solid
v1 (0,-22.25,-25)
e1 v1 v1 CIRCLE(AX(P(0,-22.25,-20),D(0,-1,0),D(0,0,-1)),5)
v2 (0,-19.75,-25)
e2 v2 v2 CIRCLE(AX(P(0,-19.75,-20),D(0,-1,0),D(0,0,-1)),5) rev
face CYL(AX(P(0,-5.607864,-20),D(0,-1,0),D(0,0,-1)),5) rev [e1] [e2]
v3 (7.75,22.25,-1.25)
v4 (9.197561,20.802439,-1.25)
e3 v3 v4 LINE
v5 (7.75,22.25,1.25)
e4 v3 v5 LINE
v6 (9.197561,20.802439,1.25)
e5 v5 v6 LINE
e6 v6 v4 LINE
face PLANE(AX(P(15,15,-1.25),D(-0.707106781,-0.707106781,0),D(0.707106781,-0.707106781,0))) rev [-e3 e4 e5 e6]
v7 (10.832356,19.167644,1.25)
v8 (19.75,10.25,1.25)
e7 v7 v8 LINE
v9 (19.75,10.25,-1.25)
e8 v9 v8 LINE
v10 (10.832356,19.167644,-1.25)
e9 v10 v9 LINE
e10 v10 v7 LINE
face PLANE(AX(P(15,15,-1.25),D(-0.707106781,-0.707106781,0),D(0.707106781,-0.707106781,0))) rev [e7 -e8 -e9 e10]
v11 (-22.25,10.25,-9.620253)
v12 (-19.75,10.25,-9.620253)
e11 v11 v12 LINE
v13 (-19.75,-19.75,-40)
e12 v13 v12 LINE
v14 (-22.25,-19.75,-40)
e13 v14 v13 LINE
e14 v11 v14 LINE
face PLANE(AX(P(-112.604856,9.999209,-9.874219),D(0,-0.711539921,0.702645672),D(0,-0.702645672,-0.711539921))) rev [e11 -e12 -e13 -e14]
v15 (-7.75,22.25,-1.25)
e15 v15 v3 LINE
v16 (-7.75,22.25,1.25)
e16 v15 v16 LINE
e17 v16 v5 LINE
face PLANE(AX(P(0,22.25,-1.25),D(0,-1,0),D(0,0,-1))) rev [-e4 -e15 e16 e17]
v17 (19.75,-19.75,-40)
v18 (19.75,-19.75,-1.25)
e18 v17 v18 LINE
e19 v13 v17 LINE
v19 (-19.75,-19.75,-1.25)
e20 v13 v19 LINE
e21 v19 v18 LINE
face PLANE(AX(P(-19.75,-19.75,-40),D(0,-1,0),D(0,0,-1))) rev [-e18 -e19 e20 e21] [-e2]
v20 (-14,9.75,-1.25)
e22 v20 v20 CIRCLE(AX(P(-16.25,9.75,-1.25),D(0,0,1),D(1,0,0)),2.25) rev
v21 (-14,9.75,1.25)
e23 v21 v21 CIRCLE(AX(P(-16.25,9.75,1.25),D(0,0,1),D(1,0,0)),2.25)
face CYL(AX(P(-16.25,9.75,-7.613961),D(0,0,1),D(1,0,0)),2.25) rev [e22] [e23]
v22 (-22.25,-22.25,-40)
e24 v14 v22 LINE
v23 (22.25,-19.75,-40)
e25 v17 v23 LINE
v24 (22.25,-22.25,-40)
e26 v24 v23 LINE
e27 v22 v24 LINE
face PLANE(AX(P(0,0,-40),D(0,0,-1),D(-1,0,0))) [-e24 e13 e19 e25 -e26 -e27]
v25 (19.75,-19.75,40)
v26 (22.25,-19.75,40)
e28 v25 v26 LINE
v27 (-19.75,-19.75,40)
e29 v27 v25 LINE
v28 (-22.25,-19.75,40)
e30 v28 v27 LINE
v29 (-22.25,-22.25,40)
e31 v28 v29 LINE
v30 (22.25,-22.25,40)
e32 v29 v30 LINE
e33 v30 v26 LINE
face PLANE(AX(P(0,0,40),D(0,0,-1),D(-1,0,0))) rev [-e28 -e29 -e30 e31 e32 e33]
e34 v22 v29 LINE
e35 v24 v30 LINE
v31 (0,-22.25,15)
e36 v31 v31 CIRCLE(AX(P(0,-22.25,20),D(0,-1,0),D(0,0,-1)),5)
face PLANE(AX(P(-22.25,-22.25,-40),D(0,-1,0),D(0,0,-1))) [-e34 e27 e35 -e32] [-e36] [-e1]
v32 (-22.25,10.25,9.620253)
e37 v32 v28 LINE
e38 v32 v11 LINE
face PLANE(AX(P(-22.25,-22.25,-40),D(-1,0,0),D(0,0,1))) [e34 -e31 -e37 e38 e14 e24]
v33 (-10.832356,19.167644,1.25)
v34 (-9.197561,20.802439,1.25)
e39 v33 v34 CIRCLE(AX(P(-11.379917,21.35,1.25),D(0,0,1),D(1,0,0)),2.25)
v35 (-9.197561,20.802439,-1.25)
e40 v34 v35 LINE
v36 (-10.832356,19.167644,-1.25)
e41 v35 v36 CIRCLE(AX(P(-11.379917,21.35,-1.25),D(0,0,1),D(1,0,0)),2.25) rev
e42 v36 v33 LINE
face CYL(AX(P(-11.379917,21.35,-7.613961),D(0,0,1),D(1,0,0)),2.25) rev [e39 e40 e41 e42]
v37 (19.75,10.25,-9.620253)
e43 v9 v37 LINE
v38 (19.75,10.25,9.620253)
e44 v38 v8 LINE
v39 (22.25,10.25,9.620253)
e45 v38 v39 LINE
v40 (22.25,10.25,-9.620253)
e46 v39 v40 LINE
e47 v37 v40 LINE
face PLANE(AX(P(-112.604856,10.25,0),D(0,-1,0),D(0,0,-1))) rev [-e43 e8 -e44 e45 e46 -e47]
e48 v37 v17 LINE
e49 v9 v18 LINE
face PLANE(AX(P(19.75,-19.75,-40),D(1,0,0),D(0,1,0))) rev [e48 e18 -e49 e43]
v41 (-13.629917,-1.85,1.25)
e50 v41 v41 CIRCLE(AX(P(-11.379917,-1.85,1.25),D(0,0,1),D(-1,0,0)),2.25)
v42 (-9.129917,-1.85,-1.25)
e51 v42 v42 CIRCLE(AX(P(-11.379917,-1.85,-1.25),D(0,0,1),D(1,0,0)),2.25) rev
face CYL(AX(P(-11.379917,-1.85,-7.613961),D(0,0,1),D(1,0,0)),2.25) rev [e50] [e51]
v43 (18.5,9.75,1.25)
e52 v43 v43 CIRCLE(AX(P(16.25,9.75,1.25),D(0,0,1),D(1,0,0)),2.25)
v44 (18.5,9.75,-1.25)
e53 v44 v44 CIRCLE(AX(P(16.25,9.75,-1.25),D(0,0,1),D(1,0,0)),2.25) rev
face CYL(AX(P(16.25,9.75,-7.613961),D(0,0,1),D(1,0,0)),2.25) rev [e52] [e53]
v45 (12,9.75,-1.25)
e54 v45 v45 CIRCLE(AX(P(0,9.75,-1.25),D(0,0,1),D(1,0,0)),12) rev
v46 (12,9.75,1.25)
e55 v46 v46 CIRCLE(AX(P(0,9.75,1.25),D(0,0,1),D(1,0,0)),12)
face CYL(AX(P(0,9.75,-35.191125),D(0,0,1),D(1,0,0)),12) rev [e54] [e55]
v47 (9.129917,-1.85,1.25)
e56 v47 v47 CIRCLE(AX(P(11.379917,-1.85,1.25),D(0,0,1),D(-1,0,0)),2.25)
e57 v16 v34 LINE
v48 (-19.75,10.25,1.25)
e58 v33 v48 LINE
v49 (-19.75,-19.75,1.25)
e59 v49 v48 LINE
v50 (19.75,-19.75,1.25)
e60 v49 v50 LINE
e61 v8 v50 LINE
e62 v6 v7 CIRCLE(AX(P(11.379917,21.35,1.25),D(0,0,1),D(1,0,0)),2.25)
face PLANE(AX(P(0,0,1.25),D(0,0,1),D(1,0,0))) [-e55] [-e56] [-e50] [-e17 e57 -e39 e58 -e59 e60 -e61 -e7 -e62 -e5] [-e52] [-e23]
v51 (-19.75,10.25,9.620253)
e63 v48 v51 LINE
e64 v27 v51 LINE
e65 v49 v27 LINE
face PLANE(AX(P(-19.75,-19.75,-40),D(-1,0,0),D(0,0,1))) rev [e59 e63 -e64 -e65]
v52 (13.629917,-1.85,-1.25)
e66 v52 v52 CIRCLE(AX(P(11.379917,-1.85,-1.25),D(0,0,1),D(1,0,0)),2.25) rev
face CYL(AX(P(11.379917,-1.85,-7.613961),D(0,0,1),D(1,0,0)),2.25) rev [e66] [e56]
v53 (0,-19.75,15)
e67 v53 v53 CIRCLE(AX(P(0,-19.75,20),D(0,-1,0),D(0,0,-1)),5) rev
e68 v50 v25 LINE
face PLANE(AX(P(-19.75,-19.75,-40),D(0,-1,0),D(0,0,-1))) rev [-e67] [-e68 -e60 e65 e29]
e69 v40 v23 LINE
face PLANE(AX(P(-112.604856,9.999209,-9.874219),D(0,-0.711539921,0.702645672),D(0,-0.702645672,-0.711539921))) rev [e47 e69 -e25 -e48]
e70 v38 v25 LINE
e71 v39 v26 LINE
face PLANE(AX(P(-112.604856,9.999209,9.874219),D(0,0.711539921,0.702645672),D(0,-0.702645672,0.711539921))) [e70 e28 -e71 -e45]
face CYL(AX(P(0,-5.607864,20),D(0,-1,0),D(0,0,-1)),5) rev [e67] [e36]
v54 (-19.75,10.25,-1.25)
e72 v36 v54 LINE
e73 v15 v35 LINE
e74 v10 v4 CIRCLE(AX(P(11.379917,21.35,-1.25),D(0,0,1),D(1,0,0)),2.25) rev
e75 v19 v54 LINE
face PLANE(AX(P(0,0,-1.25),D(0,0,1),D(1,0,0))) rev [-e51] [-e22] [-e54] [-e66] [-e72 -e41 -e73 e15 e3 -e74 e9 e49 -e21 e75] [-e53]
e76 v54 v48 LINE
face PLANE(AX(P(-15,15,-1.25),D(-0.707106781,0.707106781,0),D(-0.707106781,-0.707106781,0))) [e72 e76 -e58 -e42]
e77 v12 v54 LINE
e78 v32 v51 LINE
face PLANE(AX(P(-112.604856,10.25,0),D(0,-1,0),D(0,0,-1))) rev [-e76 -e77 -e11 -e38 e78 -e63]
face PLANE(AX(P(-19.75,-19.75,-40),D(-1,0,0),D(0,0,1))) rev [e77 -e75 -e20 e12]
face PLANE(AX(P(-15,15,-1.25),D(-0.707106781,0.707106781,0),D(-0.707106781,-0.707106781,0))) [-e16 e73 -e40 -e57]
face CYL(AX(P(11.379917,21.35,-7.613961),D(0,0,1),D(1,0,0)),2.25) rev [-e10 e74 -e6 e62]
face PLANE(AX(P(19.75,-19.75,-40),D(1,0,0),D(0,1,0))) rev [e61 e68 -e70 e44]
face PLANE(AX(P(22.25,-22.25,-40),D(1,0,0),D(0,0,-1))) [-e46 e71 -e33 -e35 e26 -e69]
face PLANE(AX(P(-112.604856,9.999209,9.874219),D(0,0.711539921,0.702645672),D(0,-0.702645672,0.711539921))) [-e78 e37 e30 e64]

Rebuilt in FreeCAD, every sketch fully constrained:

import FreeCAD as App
import Part
import Sketcher

V = App.Vector

doc = App.newDocument("Part")
body = doc.addObject("PartDesign::Body", "Body")

# Sketch on XY plane
sketch1 = doc.addObject("Sketcher::SketchObject", "Sketch")
body.addObject(sketch1)
sketch1.AttachmentSupport = (doc.XY_Plane, [""])
sketch1.MapMode = "FlatFace"
sketch1.addGeometry(Part.LineSegment(V(-22, 22, 0), V(-22, -22, 0)), False)
sketch1.addGeometry(Part.LineSegment(V(-22, -22, 0), V(22, -22, 0)), False)
sketch1.addGeometry(Part.LineSegment(V(22, -22, 0), V(22, 22, 0)), False)
sketch1.addGeometry(Part.LineSegment(V(22, 22, 0), V(-22, 22, 0)), False)
sketch1.addGeometry(Part.LineSegment(V(20, -20, 0), V(-20, -20, 0)), False)
sketch1.addGeometry(Part.LineSegment(V(-20, -20, 0), V(-20, 20, 0)), False)
sketch1.addGeometry(Part.LineSegment(V(-20, 20, 0), V(20, 20, 0)), False)
sketch1.addGeometry(Part.LineSegment(V(20, 20, 0), V(20, -20, 0)), False)
sketch1.addConstraint(Sketcher.Constraint("Coincident", 0, 2, 1, 1))
sketch1.addConstraint(Sketcher.Constraint("Coincident", 1, 2, 2, 1))
sketch1.addConstraint(Sketcher.Constraint("Coincident", 2, 2, 3, 1))
sketch1.addConstraint(Sketcher.Constraint("Coincident", 3, 2, 0, 1))
sketch1.addConstraint(Sketcher.Constraint("Coincident", 4, 2, 5, 1))
sketch1.addConstraint(Sketcher.Constraint("Coincident", 5, 2, 6, 1))
sketch1.addConstraint(Sketcher.Constraint("Coincident", 6, 2, 7, 1))
sketch1.addConstraint(Sketcher.Constraint("Coincident", 7, 2, 4, 1))
sketch1.addConstraint(Sketcher.Constraint("Vertical", 0))
sketch1.addConstraint(Sketcher.Constraint("Horizontal", 1))
sketch1.addConstraint(Sketcher.Constraint("Vertical", 2))
sketch1.addConstraint(Sketcher.Constraint("Horizontal", 3))
sketch1.addConstraint(Sketcher.Constraint("Horizontal", 4))
sketch1.addConstraint(Sketcher.Constraint("Vertical", 5))
sketch1.addConstraint(Sketcher.Constraint("Horizontal", 6))
sketch1.addConstraint(Sketcher.Constraint("Vertical", 7))
sketch1.addConstraint(Sketcher.Constraint("Symmetric", 0, 2, 2, 2, -1, 1))
sketch1.addConstraint(Sketcher.Constraint("Symmetric", 4, 2, 6, 2, -1, 1))
sketch1.addConstraint(Sketcher.Constraint("Equal", 3, 0))
sketch1.addConstraint(Sketcher.Constraint("Equal", 6, 5))
sketch1.addConstraint(Sketcher.Constraint("DistanceX", 1, 1, 1, 2, 44.5))
sketch1.addConstraint(Sketcher.Constraint("DistanceX", 4, 2, 4, 1, 39.5))
pad1 = doc.addObject("PartDesign::Pad", "Pad")
body.addObject(pad1)
pad1.Profile = sketch1
pad1.Type = "TwoLengths"
pad1.Length = 40
pad1.Length2 = 40

# Sketch on YZ plane
sketch2 = doc.addObject("Sketcher::SketchObject", "Sketch001")
body.addObject(sketch2)
sketch2.AttachmentSupport = (doc.YZ_Plane, [""])
sketch2.MapMode = "FlatFace"
sketch2.AttachmentOffset = App.Placement(V(0, 0, 22.25), App.Rotation())
sketch2.addGeometry(Part.LineSegment(V(10, 10, 0), V(10, -10, 0)), False)
sketch2.addGeometry(Part.LineSegment(V(10, -10, 0), V(-20, -40, 0)), False)
sketch2.addGeometry(Part.LineSegment(V(-20, -40, 0), V(22, -40, 0)), False)
sketch2.addGeometry(Part.LineSegment(V(22, -40, 0), V(22, 40, 0)), False)
sketch2.addGeometry(Part.LineSegment(V(22, 40, 0), V(-20, 40, 0)), False)
sketch2.addGeometry(Part.LineSegment(V(-20, 40, 0), V(10, 10, 0)), False)
sketch2.addConstraint(Sketcher.Constraint("Coincident", 0, 2, 1, 1))
sketch2.addConstraint(Sketcher.Constraint("Coincident", 1, 2, 2, 1))
sketch2.addConstraint(Sketcher.Constraint("Coincident", 2, 2, 3, 1))
sketch2.addConstraint(Sketcher.Constraint("Coincident", 3, 2, 4, 1))
sketch2.addConstraint(Sketcher.Constraint("Coincident", 4, 2, 5, 1))
sketch2.addConstraint(Sketcher.Constraint("Coincident", 5, 2, 0, 1))
sketch2.addConstraint(Sketcher.Constraint("Vertical", 0))
sketch2.addConstraint(Sketcher.Constraint("Horizontal", 2))
sketch2.addConstraint(Sketcher.Constraint("Vertical", 3))
sketch2.addConstraint(Sketcher.Constraint("Horizontal", 4))
sketch2.addConstraint(Sketcher.Constraint("Symmetric", 1, 2, 4, 2, -1))
sketch2.addConstraint(Sketcher.Constraint("Equal", 1, 5))
sketch2.addConstraint(Sketcher.Constraint("DistanceX", 2, 1, 2, 2, 42.0))
sketch2.addConstraint(Sketcher.Constraint("DistanceY", 3, 1, 3, 2, 80.0))
sketch2.addConstraint(Sketcher.Constraint("DistanceX", 1, 2, 0, 2, 30.0))
sketch2.addConstraint(Sketcher.Constraint("DistanceX", -1, 1, 0, 2, 10.25))
sketch2.addConstraint(Sketcher.Constraint("DistanceY", 0, 2, 0, 1, 19.240506))
pocket1 = doc.addObject("PartDesign::Pocket", "Pocket")
body.addObject(pocket1)
pocket1.Profile = sketch2
pocket1.Length = 44.5

# Sketch on XY plane
sketch3 = doc.addObject("Sketcher::SketchObject", "Sketch002")
body.addObject(sketch3)
sketch3.AttachmentSupport = (doc.XY_Plane, [""])
sketch3.MapMode = "FlatFace"
sketch3.addGeometry(Part.LineSegment(V(20, -20, 0), V(20, 10, 0)), False)
sketch3.addGeometry(Part.LineSegment(V(20, 10, 0), V(8, 22, 0)), False)
sketch3.addGeometry(Part.LineSegment(V(8, 22, 0), V(-8, 22, 0)), False)
sketch3.addGeometry(Part.LineSegment(V(-8, 22, 0), V(-20, 10, 0)), False)
sketch3.addGeometry(Part.LineSegment(V(-20, 10, 0), V(-20, -20, 0)), False)
sketch3.addGeometry(Part.LineSegment(V(-20, -20, 0), V(20, -20, 0)), False)
sketch3.addConstraint(Sketcher.Constraint("Coincident", 0, 2, 1, 1))
sketch3.addConstraint(Sketcher.Constraint("Coincident", 1, 2, 2, 1))
sketch3.addConstraint(Sketcher.Constraint("Coincident", 2, 2, 3, 1))
sketch3.addConstraint(Sketcher.Constraint("Coincident", 3, 2, 4, 1))
sketch3.addConstraint(Sketcher.Constraint("Coincident", 4, 2, 5, 1))
sketch3.addConstraint(Sketcher.Constraint("Coincident", 5, 2, 0, 1))
sketch3.addConstraint(Sketcher.Constraint("Vertical", 0))
sketch3.addConstraint(Sketcher.Constraint("Horizontal", 2))
sketch3.addConstraint(Sketcher.Constraint("Vertical", 4))
sketch3.addConstraint(Sketcher.Constraint("Horizontal", 5))
sketch3.addConstraint(Sketcher.Constraint("Symmetric", 0, 2, 3, 2, -2))
sketch3.addConstraint(Sketcher.Constraint("Perpendicular", 1, 3))
sketch3.addConstraint(Sketcher.Constraint("Equal", 1, 3))
sketch3.addConstraint(Sketcher.Constraint("DistanceY", 0, 1, 0, 2, 30.0))
sketch3.addConstraint(Sketcher.Constraint("DistanceX", 2, 2, 2, 1, 15.5))
sketch3.addConstraint(Sketcher.Constraint("DistanceX", 5, 1, 5, 2, 39.5))
sketch3.addConstraint(Sketcher.Constraint("DistanceY", -1, 1, 0, 2, 10.25))
pad2 = doc.addObject("PartDesign::Pad", "Pad001")
body.addObject(pad2)
pad2.Profile = sketch3
pad2.Type = "TwoLengths"
pad2.Length = 1.25
pad2.Length2 = 1.25

# Sketch on XZ plane
sketch4 = doc.addObject("Sketcher::SketchObject", "Sketch003")
body.addObject(sketch4)
sketch4.AttachmentSupport = (doc.XZ_Plane, [""])
sketch4.MapMode = "FlatFace"
sketch4.AttachmentOffset = App.Placement(V(0, 0, 22.25), App.Rotation())
sketch4.addGeometry(Part.Circle(V(0, -20, 0), V(0, 0, 1), 5), False)
sketch4.addGeometry(Part.Circle(V(0, 20, 0), V(0, 0, 1), 5), False)
sketch4.addConstraint(Sketcher.Constraint("Equal", 0, 1))
sketch4.addConstraint(Sketcher.Constraint("Symmetric", 0, 3, 1, 3, -1, 1))
sketch4.addConstraint(Sketcher.Constraint("PointOnObject", 0, 3, -2))
sketch4.addConstraint(Sketcher.Constraint("Diameter", 0, 10.0))
sketch4.addConstraint(Sketcher.Constraint("DistanceY", 0, 3, -1, 1, 20.0))
pocket2 = doc.addObject("PartDesign::Pocket", "Pocket001")
body.addObject(pocket2)
pocket2.Profile = sketch4
pocket2.Length = 2.5

# Sketch on XY plane
sketch5 = doc.addObject("Sketcher::SketchObject", "Sketch004")
body.addObject(sketch5)
sketch5.AttachmentSupport = (doc.XY_Plane, [""])
sketch5.MapMode = "FlatFace"
sketch5.AttachmentOffset = App.Placement(V(0, 0, 1.25), App.Rotation())
sketch5.addGeometry(Part.Circle(V(0, 10, 0), V(0, 0, 1), 12), False)
sketch5.addConstraint(Sketcher.Constraint("PointOnObject", 0, 3, -2))
sketch5.addConstraint(Sketcher.Constraint("Diameter", 0, 24.0))
sketch5.addConstraint(Sketcher.Constraint("DistanceY", -1, 1, 0, 3, 9.75))
pocket3 = doc.addObject("PartDesign::Pocket", "Pocket002")
body.addObject(pocket3)
pocket3.Profile = sketch5
pocket3.Length = 2.5

# Sketch on XY plane
sketch6 = doc.addObject("Sketcher::SketchObject", "Sketch005")
body.addObject(sketch6)
sketch6.AttachmentSupport = (doc.XY_Plane, [""])
sketch6.MapMode = "FlatFace"
sketch6.AttachmentOffset = App.Placement(V(0, 0, 1.25), App.Rotation())
sketch6.addGeometry(Part.Circle(V(-11.4, 21.4, 0), V(0, 0, 1), 2.2), False)
sketch6.addGeometry(Part.Circle(V(11.4, 21.4, 0), V(0, 0, 1), 2.2), False)
sketch6.addGeometry(Part.Circle(V(-16.2, 9.8, 0), V(0, 0, 1), 2.2), False)
sketch6.addGeometry(Part.Circle(V(16.2, 9.8, 0), V(0, 0, 1), 2.2), False)
sketch6.addGeometry(Part.Circle(V(-11.4, -1.9, 0), V(0, 0, 1), 2.2), False)
sketch6.addGeometry(Part.Circle(V(11.4, -1.9, 0), V(0, 0, 1), 2.2), False)
sketch6.addConstraint(Sketcher.Constraint("Equal", 0, 1))
sketch6.addConstraint(Sketcher.Constraint("Equal", 1, 2))
sketch6.addConstraint(Sketcher.Constraint("Equal", 2, 3))
sketch6.addConstraint(Sketcher.Constraint("Equal", 3, 4))
sketch6.addConstraint(Sketcher.Constraint("Equal", 4, 5))
sketch6.addConstraint(Sketcher.Constraint("Symmetric", 0, 3, 1, 3, -2))
sketch6.addConstraint(Sketcher.Constraint("Symmetric", 2, 3, 3, 3, -2))
sketch6.addConstraint(Sketcher.Constraint("Symmetric", 4, 3, 5, 3, -2))
sketch6.addConstraint(Sketcher.Constraint("Vertical", 0, 3, 4, 3))
sketch6.addConstraint(Sketcher.Constraint("Diameter", 0, 4.5))
sketch6.addConstraint(Sketcher.Constraint("DistanceY", 2, 3, 0, 3, 11.6))
sketch6.addConstraint(Sketcher.Constraint("DistanceX", 2, 3, 3, 3, 32.5))
sketch6.addConstraint(Sketcher.Constraint("DistanceY", 4, 3, 2, 3, 11.6))
sketch6.addConstraint(Sketcher.Constraint("DistanceY", -1, 1, 0, 3, 21.35))
sketch6.addConstraint(Sketcher.Constraint("DistanceX", 0, 3, -1, 1, 11.379917))
pocket4 = doc.addObject("PartDesign::Pocket", "Pocket003")
body.addObject(pocket4)
pocket4.Profile = sketch6
pocket4.Length = 2.5

doc.recompute()
